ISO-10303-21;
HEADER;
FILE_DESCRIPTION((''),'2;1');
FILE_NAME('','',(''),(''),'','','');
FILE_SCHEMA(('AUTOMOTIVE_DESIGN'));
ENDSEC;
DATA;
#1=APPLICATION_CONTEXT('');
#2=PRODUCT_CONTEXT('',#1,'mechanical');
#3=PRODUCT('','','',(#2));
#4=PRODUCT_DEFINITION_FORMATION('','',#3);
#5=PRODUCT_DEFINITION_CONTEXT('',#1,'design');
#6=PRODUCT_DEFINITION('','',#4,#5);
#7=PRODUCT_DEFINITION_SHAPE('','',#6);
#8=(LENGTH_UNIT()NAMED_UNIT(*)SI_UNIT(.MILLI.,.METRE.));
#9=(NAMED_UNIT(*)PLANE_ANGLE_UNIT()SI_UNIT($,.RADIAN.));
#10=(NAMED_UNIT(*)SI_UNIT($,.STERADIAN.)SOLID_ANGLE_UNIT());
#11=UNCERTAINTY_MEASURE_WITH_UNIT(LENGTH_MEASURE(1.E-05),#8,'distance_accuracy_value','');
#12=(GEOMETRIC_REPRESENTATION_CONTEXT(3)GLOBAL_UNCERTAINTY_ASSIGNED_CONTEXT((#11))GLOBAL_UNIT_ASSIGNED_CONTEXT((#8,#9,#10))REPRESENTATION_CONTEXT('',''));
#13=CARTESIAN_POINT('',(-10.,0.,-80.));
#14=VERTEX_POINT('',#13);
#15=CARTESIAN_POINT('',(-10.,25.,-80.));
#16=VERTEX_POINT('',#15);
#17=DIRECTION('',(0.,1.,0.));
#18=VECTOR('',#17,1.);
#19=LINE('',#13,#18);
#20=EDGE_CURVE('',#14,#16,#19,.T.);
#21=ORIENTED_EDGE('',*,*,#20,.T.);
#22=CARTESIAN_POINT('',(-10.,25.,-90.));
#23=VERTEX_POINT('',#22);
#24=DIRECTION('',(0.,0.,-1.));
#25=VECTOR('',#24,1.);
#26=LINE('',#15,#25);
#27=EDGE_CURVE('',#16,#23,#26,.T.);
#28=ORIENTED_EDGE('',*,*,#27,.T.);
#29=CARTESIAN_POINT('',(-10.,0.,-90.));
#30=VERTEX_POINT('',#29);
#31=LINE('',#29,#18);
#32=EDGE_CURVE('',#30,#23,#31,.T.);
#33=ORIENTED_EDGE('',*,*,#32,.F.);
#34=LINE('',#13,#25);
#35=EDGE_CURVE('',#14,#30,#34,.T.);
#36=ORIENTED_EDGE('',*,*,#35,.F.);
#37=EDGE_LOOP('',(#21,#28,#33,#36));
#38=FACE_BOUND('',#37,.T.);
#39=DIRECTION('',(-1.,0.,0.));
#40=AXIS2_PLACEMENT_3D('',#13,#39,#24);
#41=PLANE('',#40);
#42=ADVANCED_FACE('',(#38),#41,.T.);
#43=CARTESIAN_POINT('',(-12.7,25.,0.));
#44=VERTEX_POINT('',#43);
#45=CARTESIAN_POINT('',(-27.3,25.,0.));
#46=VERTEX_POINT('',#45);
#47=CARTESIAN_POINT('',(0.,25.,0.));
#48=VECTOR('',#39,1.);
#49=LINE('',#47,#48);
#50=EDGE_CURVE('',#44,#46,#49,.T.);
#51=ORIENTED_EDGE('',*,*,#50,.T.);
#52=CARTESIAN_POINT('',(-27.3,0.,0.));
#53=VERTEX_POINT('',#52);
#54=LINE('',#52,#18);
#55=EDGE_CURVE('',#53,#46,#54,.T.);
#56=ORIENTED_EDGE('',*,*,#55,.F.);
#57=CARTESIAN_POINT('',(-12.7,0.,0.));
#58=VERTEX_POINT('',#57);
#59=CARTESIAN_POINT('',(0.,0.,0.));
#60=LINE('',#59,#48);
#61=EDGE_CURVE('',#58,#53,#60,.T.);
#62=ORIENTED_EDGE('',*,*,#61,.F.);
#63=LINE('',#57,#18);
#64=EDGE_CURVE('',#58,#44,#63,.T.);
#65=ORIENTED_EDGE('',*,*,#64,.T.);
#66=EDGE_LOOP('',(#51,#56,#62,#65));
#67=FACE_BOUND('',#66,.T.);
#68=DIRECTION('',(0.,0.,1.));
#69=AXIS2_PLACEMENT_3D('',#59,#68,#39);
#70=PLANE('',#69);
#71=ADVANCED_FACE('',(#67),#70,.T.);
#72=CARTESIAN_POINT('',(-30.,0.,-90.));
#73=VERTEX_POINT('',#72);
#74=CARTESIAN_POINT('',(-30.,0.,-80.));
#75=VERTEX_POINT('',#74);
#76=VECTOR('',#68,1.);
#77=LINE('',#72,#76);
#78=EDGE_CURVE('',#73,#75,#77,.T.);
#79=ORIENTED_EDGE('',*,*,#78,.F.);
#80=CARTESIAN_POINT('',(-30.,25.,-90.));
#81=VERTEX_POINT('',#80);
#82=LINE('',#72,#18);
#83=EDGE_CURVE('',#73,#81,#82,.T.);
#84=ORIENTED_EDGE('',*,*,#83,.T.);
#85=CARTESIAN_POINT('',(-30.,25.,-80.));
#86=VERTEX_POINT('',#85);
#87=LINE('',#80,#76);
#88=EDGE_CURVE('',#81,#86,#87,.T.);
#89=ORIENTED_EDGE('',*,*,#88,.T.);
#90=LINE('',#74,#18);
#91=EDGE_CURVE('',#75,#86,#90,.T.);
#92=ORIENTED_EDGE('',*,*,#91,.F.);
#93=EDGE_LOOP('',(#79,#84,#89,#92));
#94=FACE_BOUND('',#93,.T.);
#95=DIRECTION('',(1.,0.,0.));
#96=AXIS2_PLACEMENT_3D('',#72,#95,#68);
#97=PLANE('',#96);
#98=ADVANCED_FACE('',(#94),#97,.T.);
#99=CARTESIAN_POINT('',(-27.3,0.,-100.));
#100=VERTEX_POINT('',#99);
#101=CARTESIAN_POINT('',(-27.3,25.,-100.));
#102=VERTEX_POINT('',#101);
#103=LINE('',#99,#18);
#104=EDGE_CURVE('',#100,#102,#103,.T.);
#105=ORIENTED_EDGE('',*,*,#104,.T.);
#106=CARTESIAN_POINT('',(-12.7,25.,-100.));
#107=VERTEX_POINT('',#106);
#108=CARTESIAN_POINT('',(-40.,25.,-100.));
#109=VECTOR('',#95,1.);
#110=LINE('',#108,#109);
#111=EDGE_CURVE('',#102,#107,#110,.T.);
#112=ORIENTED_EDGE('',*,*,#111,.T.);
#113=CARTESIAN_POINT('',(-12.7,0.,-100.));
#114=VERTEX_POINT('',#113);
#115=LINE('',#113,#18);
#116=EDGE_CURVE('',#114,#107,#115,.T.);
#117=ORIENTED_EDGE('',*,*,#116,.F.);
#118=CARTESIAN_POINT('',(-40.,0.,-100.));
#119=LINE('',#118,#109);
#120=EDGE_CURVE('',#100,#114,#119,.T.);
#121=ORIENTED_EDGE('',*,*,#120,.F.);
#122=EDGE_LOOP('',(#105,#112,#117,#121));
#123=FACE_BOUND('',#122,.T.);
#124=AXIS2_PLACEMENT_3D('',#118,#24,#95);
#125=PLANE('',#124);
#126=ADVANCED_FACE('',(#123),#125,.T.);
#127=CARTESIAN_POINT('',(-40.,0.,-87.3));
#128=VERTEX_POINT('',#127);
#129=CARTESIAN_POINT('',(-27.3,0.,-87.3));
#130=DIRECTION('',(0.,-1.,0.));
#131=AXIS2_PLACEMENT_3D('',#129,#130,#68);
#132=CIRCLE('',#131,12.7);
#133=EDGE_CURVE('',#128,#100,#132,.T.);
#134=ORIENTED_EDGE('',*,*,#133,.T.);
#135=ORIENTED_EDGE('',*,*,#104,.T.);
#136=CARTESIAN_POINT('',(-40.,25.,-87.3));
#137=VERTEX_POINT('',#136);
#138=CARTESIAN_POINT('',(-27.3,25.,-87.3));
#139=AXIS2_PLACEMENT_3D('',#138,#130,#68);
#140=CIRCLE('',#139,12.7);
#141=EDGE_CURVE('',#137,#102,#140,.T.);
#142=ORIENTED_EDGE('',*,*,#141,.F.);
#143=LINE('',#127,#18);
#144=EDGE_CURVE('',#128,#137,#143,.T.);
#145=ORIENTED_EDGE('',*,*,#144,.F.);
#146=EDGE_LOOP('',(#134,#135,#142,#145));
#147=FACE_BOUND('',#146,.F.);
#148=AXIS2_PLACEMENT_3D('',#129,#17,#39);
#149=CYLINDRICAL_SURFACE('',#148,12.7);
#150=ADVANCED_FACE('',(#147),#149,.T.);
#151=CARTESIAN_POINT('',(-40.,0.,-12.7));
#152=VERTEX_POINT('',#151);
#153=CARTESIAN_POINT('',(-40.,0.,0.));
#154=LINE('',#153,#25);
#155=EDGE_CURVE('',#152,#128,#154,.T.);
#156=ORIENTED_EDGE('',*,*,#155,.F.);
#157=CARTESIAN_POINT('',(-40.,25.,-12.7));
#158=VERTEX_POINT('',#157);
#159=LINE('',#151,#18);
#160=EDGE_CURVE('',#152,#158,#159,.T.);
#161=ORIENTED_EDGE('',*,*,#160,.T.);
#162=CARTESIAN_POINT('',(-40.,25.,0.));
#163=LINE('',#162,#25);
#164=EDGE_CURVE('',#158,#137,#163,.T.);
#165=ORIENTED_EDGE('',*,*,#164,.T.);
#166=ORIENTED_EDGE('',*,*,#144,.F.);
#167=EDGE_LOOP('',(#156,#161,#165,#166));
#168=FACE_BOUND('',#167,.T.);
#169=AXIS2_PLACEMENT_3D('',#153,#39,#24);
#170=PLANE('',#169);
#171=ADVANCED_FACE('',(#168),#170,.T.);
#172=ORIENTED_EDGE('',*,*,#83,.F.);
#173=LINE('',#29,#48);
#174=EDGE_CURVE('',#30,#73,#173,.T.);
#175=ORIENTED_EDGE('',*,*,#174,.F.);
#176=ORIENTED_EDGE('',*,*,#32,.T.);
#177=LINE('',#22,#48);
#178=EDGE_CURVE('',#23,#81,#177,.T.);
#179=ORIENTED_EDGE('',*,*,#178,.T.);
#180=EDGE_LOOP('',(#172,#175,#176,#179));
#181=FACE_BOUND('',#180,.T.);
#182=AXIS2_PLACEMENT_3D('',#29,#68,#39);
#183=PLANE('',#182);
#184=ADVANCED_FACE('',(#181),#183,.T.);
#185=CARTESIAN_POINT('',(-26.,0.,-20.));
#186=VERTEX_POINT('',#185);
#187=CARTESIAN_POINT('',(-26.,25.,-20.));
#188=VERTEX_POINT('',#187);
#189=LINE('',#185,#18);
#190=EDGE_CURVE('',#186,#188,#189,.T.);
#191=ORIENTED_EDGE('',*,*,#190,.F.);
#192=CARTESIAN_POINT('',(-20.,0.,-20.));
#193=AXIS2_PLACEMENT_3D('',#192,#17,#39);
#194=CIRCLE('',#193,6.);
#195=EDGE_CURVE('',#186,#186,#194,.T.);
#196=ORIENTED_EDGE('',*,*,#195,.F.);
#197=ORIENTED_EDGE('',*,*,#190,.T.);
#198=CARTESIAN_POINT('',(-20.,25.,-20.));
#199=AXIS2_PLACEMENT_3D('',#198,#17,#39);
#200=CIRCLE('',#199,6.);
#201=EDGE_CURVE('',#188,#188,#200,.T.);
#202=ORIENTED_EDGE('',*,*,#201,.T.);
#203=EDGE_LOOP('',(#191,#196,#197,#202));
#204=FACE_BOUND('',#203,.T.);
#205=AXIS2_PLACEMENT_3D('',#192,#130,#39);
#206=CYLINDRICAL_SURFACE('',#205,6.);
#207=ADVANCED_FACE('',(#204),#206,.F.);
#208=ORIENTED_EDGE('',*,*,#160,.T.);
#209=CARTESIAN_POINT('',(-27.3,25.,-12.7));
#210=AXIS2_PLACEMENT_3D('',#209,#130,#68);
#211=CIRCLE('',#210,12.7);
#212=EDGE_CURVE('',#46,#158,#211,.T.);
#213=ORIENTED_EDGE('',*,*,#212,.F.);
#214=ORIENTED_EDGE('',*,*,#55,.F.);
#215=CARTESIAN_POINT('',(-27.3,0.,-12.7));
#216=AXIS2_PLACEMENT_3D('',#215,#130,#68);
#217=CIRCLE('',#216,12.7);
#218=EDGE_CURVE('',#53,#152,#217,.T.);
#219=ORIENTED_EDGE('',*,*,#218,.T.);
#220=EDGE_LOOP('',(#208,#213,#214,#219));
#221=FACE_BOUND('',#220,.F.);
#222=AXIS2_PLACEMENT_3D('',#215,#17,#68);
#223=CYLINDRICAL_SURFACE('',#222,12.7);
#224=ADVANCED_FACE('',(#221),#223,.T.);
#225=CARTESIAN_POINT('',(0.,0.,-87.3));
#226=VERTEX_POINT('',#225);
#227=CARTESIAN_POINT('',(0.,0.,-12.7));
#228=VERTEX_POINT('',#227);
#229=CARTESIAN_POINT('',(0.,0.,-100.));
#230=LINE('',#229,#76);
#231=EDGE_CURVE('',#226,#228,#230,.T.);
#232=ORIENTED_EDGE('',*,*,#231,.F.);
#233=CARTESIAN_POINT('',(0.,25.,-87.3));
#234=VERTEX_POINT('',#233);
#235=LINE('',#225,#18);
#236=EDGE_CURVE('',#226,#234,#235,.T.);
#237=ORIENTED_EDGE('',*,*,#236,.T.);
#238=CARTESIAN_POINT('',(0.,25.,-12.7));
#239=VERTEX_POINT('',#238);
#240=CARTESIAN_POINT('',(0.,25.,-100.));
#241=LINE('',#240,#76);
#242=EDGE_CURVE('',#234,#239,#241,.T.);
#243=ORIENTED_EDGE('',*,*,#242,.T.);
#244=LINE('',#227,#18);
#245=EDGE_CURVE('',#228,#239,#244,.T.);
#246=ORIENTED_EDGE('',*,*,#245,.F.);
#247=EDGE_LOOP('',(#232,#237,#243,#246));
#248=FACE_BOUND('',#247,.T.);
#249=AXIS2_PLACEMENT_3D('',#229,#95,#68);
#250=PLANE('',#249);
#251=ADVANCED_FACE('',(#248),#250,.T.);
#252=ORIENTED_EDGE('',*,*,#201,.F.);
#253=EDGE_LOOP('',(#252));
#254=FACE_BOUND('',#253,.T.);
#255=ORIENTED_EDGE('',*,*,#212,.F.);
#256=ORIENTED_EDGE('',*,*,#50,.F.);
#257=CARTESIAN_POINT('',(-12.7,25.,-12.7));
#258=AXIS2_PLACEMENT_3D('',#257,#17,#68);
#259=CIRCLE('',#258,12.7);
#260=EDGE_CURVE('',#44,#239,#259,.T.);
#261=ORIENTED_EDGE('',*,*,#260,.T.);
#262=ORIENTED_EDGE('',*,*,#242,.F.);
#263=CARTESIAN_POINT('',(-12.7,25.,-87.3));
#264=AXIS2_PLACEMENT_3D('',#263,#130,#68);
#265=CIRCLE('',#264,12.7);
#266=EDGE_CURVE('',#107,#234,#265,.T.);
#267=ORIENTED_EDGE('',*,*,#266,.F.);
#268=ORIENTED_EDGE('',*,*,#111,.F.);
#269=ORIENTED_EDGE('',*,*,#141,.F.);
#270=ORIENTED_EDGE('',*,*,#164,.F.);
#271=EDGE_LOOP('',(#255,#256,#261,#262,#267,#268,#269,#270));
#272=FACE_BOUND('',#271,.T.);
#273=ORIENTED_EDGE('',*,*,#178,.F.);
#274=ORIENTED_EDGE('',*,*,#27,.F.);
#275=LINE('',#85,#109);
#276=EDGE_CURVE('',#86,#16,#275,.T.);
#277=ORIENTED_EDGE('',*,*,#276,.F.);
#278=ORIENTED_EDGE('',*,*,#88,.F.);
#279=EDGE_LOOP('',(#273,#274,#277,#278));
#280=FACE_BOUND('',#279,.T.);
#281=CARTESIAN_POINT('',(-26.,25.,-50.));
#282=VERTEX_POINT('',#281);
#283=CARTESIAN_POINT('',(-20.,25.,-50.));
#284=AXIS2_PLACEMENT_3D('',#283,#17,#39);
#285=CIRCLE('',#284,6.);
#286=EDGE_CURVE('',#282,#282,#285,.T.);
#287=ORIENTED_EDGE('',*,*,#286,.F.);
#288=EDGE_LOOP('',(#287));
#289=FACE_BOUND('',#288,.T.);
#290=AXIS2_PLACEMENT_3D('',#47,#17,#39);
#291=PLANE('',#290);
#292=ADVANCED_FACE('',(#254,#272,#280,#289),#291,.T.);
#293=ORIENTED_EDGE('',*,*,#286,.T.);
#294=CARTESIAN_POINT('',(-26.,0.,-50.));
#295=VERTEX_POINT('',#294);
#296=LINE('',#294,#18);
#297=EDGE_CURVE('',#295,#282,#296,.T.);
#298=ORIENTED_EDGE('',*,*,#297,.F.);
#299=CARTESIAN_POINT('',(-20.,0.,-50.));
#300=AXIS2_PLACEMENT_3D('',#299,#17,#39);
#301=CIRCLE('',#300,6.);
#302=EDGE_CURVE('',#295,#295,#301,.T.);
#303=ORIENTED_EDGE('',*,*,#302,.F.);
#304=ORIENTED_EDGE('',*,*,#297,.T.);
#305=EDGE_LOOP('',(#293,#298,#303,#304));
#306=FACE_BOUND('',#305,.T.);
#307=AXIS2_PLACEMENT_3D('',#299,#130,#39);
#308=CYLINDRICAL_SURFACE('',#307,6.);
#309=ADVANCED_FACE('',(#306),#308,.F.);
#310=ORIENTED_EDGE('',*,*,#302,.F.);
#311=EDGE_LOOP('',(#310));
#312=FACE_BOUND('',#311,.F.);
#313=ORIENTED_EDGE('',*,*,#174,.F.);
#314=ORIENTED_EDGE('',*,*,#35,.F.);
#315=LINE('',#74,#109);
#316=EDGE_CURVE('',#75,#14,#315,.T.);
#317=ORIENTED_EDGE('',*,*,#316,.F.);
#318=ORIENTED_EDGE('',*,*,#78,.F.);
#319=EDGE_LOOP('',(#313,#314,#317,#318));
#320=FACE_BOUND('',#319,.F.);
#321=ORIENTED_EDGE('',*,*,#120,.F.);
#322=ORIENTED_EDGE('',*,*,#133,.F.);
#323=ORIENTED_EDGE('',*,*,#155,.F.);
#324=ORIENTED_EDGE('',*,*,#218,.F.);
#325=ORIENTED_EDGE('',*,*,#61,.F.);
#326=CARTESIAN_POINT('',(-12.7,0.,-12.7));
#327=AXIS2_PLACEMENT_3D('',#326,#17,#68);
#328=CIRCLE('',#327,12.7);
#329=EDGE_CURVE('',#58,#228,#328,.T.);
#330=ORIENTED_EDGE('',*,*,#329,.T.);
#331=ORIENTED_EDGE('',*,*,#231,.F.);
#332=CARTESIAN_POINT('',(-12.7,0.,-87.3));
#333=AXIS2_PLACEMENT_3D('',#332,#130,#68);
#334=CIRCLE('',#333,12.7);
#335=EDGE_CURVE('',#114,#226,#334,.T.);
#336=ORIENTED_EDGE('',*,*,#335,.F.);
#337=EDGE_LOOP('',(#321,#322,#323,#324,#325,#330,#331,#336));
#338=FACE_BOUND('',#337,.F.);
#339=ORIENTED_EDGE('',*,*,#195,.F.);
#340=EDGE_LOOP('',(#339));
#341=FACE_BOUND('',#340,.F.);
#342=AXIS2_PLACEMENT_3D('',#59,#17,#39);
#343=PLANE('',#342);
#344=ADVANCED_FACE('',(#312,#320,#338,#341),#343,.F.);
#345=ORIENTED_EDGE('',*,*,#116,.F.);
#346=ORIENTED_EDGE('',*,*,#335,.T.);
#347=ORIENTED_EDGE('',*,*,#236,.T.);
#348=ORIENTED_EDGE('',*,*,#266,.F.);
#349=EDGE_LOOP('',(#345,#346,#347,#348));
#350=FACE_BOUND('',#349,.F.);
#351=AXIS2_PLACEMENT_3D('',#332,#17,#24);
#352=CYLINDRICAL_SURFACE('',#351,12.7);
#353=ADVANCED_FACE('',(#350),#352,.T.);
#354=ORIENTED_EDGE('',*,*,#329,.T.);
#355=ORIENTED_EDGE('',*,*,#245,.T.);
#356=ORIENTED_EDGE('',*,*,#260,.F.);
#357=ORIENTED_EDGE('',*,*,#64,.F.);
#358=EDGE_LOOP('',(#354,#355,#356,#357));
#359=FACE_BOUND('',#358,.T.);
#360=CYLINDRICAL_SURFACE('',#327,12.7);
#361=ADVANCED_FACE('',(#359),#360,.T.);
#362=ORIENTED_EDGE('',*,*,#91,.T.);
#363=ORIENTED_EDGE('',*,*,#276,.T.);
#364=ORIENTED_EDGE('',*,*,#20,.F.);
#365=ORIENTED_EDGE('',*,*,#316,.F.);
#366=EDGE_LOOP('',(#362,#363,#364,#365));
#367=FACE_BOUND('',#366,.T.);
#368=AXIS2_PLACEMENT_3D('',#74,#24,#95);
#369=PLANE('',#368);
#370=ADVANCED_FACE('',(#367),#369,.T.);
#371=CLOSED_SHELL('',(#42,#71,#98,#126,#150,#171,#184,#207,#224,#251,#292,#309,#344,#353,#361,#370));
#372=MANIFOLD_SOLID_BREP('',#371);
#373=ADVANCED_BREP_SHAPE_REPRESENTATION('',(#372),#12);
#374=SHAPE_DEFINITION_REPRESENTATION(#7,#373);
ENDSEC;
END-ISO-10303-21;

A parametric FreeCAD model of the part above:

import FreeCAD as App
import Part
import Sketcher
from FreeCAD import Vector


def edges_at(feature, points):
    """Names of the edges that pass closest to the given points."""
    edges = feature.Shape.Edges
    near = lambda p: min(range(len(edges)), key=lambda i: edges[i].distToShape(Part.Vertex(*p))[0])
    return sorted({f"Edge{near(p) + 1}" for p in points})


def add_polygon(sketch, points):
    """Adds a closed chain of lines whose ends are joined by coincident constraints."""
    first, n = sketch.GeometryCount, len(points)
    for a, b in zip(points, points[1:] + points[:1]):
        sketch.addGeometry(Part.LineSegment(App.Vector(*a, 0), App.Vector(*b, 0)), False)
    for i in range(n):
        sketch.addConstraint(Sketcher.Constraint("Coincident", first + i, 2, first + (i + 1) % n, 1))

doc = App.newDocument("Part")
params = doc.addObject("Spreadsheet::Sheet", "Params")
for row, (alias, value) in enumerate([
    ("sketch1_diameter", "12 mm"),
    ("sketch1_width", "40 mm"),
    ("sketch1_width2", "20 mm"),
    ("sketch1_height", "100 mm"),
    ("sketch1_height2", "10 mm"),
    ("pad1_length", "25 mm"),
    ("fillet_radius", "12.7 mm"),
], start=1):
    params.set(f"A{row}", alias)
    params.set(f"B{row}", "=" + value)
    params.setAlias(f"B{row}", alias)

body = doc.addObject("PartDesign::Body", "Body")

# Sketch on XZ plane
sketch1 = body.newObject("Sketcher::SketchObject", "Sketch")
sketch1.AttachmentSupport = (doc.getObject("XZ_Plane"), [""])
sketch1.MapMode = "FlatFace"
add_polygon(sketch1, [(-40, 0), (0, 0), (0, -100), (-40, -100)])  # lines 0-3
add_polygon(sketch1, [(-10, -80), (-30, -80), (-30, -90), (-10, -90)])  # lines 4-7
sketch1.addGeometry(Part.Circle(Vector(-20, -50, 0), Vector(0, 0, 1), 6), False)  # 8
sketch1.addGeometry(Part.Circle(Vector(-20, -20, 0), Vector(0, 0, 1), 6), False)  # 9
sketch1.addConstraint([
    Sketcher.Constraint("Horizontal", 0),
    Sketcher.Constraint("Vertical", 1),
    Sketcher.Constraint("Horizontal", 2),
    Sketcher.Constraint("Vertical", 3),
    Sketcher.Constraint("Horizontal", 4),
    Sketcher.Constraint("Vertical", 5),
    Sketcher.Constraint("Horizontal", 6),
    Sketcher.Constraint("Vertical", 7),
    Sketcher.Constraint("Coincident", 0, 2, -1, 1),
    Sketcher.Constraint("Equal", 8, 9),
    Sketcher.Constraint("Vertical", 8, 3, 9, 3),
    Sketcher.Constraint("Diameter", 8, 12.0),
    Sketcher.Constraint("DistanceX", 0, 1, 0, 2, 40.0),
    Sketcher.Constraint("DistanceX", 4, 2, 4, 1, 20.0),
    Sketcher.Constraint("DistanceY", 1, 2, 1, 1, 100.0),
    Sketcher.Constraint("DistanceY", 5, 2, 5, 1, 10.0),
    Sketcher.Constraint("DistanceX", 8, 3, -1, 1, 20.0),
    Sketcher.Constraint("DistanceY", 9, 3, -1, 1, 20.0),
    Sketcher.Constraint("DistanceX", 4, 2, -1, 1, 30.0),
    Sketcher.Constraint("DistanceY", 8, 3, 9, 3, 30.0),
    Sketcher.Constraint("DistanceY", 2, 2, 4, 2, 20.0),
])
sketch1.setExpression("Constraints[19]", "Params.sketch1_diameter")
sketch1.setExpression("Constraints[20]", "Params.sketch1_width")
sketch1.setExpression("Constraints[21]", "Params.sketch1_width2")
sketch1.setExpression("Constraints[22]", "Params.sketch1_height")
sketch1.setExpression("Constraints[23]", "Params.sketch1_height2")
pad1 = body.newObject("PartDesign::Pad", "Pad")
pad1.Profile = sketch1
pad1.setExpression("Length", "Params.pad1_length")
pad1.Reversed = True
doc.recompute()

fillet = body.newObject("PartDesign::Fillet", "Fillet")
fillet.Base = (pad1, edges_at(pad1, [
    (0, 12.5, -100),
    (0, 12.5, 0),
    (-40, 12.5, 0),
    (-40, 12.5, -100),
]))
fillet.setExpression("Radius", "Params.fillet_radius")

doc.recompute()
